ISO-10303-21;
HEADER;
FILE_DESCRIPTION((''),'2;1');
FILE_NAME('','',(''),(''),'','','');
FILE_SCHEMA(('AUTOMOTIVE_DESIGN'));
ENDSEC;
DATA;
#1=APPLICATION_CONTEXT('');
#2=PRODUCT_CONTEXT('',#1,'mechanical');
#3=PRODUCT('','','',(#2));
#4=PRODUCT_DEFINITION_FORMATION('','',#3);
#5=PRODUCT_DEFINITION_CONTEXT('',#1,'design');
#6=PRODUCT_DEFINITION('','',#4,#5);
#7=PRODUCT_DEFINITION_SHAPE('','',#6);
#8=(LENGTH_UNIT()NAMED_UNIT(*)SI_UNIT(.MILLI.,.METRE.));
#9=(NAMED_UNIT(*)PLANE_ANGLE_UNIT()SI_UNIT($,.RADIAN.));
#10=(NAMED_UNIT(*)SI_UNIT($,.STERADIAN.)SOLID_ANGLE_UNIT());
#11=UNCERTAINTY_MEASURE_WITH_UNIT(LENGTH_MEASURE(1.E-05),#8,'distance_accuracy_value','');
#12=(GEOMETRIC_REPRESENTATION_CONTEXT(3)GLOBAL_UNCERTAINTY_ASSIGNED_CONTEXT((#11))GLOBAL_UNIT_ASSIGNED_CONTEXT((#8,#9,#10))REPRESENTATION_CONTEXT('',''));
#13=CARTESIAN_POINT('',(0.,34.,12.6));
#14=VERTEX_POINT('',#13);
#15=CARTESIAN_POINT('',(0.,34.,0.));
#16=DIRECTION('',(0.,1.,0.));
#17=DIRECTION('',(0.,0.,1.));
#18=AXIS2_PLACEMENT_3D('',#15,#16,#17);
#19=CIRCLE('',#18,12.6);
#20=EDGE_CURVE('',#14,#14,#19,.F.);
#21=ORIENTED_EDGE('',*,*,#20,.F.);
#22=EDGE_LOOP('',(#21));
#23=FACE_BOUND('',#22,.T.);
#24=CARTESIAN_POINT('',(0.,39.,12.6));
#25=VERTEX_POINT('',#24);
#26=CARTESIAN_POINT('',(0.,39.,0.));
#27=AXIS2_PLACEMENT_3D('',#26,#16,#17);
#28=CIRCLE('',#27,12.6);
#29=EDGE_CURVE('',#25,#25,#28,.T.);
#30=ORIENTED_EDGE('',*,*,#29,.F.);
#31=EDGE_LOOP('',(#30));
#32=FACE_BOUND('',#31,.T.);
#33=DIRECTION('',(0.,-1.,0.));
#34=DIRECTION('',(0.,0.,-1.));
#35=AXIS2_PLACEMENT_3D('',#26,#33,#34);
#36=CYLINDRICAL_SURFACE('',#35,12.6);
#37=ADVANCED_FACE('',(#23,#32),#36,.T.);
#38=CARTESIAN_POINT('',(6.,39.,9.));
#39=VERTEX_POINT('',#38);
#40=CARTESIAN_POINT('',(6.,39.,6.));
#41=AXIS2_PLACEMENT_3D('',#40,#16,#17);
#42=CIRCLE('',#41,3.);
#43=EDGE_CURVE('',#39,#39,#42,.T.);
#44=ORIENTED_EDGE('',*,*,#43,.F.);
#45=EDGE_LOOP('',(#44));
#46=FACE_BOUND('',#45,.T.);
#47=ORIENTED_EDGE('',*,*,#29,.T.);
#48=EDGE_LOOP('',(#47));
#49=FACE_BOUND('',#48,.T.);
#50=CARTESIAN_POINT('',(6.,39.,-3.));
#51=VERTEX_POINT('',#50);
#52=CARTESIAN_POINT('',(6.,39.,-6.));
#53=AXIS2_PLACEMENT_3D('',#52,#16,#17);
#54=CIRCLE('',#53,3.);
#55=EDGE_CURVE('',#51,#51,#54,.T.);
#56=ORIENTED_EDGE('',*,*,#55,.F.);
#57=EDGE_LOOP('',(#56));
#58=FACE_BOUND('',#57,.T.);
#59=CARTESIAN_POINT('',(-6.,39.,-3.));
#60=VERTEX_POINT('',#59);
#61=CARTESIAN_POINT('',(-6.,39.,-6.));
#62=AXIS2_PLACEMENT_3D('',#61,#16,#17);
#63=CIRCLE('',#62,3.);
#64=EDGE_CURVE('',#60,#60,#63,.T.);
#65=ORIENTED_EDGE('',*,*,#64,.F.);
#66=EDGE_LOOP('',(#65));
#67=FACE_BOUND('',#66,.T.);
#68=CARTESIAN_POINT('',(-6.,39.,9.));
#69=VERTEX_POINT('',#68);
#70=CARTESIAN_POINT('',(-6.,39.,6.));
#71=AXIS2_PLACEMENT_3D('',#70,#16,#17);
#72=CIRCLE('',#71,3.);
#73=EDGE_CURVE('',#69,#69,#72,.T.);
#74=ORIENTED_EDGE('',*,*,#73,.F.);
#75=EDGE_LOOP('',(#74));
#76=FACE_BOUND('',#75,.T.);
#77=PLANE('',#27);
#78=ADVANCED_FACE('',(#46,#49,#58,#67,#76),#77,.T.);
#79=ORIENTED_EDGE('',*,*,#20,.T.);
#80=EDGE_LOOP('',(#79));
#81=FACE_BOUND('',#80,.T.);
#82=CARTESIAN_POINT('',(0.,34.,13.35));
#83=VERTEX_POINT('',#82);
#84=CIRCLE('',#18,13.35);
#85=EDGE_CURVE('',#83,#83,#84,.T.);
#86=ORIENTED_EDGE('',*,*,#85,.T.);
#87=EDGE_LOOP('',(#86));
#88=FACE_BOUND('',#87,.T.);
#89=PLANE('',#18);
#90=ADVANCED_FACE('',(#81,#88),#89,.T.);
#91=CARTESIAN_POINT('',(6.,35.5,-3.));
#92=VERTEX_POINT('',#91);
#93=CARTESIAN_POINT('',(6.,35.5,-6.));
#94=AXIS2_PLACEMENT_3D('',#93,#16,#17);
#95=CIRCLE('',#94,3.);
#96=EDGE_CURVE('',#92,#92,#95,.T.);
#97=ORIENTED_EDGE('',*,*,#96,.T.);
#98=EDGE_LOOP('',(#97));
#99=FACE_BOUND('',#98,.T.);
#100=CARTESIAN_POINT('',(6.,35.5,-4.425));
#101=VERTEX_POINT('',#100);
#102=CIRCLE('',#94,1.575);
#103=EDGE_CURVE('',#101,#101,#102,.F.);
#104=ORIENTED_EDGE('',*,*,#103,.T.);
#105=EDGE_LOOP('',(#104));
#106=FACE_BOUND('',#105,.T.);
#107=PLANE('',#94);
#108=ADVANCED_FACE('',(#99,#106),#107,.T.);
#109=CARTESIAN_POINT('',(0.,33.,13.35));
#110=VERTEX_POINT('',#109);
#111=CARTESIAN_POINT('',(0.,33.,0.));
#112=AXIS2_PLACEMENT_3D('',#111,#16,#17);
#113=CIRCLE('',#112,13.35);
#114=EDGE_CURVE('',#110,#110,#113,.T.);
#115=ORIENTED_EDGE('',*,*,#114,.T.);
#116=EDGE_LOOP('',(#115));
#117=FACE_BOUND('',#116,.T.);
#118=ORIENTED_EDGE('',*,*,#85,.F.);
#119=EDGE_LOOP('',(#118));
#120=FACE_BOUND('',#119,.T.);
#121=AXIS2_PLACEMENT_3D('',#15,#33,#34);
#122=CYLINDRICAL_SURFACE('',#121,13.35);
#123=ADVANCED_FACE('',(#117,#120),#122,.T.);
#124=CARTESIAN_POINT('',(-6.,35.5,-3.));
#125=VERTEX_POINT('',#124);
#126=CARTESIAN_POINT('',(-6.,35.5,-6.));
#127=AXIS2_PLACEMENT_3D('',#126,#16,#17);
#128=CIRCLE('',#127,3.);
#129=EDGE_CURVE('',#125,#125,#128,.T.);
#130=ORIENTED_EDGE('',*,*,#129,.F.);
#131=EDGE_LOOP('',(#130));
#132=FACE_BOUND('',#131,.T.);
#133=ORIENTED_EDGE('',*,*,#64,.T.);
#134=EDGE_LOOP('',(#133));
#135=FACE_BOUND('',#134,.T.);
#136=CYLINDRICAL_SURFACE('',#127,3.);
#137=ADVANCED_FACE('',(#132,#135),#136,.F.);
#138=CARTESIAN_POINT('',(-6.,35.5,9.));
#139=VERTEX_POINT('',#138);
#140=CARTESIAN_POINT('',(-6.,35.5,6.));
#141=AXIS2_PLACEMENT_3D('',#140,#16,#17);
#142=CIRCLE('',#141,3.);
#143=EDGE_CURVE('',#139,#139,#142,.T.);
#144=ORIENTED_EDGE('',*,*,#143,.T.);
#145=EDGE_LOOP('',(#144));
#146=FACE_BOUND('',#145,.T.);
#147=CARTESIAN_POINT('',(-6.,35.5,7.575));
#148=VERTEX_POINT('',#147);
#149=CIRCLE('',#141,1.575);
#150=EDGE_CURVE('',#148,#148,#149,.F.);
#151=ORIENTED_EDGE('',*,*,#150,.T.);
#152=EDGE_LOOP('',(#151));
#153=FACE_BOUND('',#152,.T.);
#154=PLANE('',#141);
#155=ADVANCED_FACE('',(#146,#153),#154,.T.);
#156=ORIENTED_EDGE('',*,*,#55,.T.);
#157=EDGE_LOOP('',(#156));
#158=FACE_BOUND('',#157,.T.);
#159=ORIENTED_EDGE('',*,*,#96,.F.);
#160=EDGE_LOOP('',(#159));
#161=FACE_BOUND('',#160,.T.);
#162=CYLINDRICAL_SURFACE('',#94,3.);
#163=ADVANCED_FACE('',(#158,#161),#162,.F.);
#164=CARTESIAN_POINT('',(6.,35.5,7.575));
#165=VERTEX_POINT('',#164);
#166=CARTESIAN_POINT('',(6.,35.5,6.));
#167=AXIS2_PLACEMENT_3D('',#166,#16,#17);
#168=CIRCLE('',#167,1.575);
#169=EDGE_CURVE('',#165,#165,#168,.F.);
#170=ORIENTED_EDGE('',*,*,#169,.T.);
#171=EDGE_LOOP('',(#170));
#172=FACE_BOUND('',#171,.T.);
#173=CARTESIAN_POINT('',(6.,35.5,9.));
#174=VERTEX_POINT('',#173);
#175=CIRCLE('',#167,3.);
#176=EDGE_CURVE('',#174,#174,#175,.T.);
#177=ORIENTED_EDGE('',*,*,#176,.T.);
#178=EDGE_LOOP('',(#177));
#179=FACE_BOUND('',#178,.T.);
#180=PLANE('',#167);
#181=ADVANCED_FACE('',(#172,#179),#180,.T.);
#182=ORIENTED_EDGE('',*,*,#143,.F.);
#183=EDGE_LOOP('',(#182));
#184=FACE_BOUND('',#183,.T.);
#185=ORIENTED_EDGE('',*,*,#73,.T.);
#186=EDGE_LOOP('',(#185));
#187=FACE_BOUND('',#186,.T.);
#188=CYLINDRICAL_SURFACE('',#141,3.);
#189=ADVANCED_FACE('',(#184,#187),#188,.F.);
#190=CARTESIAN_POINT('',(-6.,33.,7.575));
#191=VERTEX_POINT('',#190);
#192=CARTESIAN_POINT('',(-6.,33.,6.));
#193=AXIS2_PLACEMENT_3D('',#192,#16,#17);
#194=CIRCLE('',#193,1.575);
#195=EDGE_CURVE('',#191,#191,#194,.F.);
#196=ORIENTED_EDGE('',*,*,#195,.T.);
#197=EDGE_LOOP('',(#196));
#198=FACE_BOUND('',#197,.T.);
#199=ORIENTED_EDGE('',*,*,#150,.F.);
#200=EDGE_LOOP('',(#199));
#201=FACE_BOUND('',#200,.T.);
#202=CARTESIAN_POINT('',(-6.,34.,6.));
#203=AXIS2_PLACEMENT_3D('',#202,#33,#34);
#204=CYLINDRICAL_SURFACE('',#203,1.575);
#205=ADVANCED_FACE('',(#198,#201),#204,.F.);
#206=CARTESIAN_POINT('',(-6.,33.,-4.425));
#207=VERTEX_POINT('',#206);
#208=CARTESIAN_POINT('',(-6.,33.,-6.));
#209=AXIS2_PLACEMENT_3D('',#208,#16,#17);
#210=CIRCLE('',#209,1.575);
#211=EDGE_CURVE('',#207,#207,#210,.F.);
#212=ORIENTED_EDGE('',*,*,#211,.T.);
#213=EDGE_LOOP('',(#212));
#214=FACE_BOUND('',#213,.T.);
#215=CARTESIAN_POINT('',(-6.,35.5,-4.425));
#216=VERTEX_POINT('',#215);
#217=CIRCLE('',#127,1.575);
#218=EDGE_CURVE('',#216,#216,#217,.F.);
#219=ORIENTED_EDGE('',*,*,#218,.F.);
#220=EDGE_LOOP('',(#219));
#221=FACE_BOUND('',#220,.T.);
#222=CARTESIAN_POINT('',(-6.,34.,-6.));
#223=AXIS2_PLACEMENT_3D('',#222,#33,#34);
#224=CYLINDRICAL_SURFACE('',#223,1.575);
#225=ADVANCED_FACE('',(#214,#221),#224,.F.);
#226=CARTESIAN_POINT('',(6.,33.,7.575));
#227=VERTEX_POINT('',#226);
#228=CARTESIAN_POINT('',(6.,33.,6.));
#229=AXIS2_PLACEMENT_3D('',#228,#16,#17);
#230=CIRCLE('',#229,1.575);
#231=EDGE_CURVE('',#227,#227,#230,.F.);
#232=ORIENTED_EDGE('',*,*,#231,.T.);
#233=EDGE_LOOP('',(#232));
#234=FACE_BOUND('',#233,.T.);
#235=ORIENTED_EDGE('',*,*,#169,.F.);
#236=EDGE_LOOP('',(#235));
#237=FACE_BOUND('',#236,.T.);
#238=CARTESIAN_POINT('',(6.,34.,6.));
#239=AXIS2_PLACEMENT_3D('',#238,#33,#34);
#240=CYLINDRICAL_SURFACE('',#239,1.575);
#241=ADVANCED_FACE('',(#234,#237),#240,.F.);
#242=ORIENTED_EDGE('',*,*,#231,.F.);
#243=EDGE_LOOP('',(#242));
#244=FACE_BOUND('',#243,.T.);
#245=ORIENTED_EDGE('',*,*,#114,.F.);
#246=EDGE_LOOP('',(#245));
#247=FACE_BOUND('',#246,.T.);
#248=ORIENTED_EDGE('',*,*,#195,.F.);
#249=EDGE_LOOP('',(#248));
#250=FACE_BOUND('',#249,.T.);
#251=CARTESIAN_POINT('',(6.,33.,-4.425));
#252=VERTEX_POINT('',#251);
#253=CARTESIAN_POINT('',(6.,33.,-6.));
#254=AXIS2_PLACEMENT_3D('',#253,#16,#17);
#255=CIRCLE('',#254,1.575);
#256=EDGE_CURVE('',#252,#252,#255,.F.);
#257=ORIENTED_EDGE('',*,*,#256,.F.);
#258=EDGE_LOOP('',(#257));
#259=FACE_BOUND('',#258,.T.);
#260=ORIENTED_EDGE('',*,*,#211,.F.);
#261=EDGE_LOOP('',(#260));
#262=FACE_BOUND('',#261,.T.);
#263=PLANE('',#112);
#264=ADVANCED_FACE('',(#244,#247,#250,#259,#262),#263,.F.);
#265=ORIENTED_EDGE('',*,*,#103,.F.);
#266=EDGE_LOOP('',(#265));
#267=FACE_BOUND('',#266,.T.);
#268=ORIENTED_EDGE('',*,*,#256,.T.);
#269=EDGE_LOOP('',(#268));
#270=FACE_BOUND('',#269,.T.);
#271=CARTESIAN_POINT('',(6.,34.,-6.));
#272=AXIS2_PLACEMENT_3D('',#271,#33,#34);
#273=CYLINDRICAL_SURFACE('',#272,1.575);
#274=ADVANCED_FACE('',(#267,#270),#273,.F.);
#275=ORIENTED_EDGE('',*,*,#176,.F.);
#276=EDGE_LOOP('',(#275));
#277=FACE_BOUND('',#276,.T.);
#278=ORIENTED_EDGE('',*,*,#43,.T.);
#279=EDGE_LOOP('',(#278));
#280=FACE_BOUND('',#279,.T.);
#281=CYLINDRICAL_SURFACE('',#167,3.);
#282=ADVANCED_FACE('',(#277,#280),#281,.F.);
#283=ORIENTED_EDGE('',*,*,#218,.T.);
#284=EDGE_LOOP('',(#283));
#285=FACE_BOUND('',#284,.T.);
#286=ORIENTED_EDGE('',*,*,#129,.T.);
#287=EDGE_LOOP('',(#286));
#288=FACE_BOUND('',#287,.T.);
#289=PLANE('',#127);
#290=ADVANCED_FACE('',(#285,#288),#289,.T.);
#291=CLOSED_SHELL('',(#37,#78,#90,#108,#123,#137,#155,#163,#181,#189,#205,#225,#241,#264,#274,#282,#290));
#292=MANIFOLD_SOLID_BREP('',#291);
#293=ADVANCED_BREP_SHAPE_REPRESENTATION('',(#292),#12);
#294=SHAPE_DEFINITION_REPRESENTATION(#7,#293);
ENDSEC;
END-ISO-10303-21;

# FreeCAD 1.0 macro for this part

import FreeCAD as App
import Part
import Sketcher
Q = App.Units.Quantity

doc = App.newDocument("Part")
body = doc.addObject("PartDesign::Body", "Body")

# Sketch on XZ plane
sketch1 = doc.addObject("Sketcher::SketchObject", "Sketch")
body.addObject(sketch1)
sketch1.AttachmentSupport = (doc.XZ_Plane, [""])
sketch1.MapMode = "FlatFace"
sketch1.AttachmentOffset = App.Placement(App.Vector(0, 0, -33), App.Rotation())
sketch1.addGeometry(Part.Circle(App.Vector(0, 0, 0), App.Vector(0, 0, 1), 13.3), False)
sketch1.addGeometry(Part.Circle(App.Vector(6, -6, 0), App.Vector(0, 0, 1), 1.6), False)
sketch1.addGeometry(Part.Circle(App.Vector(-6, 6, 0), App.Vector(0, 0, 1), 1.6), False)
sketch1.addGeometry(Part.Circle(App.Vector(6, 6, 0), App.Vector(0, 0, 1), 1.6), False)
sketch1.addGeometry(Part.Circle(App.Vector(-6, -6, 0), App.Vector(0, 0, 1), 1.6), False)
sketch1.addConstraint(Sketcher.Constraint("Coincident", 0, 3, -1, 1))
sketch1.addConstraint(Sketcher.Constraint("Equal", 1, 2))
sketch1.addConstraint(Sketcher.Constraint("Equal", 2, 3))
sketch1.addConstraint(Sketcher.Constraint("Equal", 3, 4))
sketch1.addConstraint(Sketcher.Constraint("Symmetric", 1, 3, 2, 3, -1, 1))
sketch1.addConstraint(Sketcher.Constraint("Symmetric", 3, 3, 4, 3, -1, 1))
sketch1.addConstraint(Sketcher.Constraint("Symmetric", 2, 3, 3, 3, -2))
sketch1.addConstraint(Sketcher.Constraint("Diameter", 0, Q("26.7 mm")))
sketch1.addConstraint(Sketcher.Constraint("Diameter", 1, Q("3.15 mm")))
sketch1.addConstraint(Sketcher.Constraint("DistanceX", -1, 1, 1, 3, Q("6 mm")))
sketch1.addConstraint(Sketcher.Constraint("DistanceY", 1, 3, -1, 1, Q("6 mm")))
pad1 = doc.addObject("PartDesign::Pad", "Pad")
body.addObject(pad1)
pad1.Profile = sketch1
pad1.Length = 1
pad1.Reversed = True

# Sketch on XZ plane
sketch2 = doc.addObject("Sketcher::SketchObject", "Sketch001")
body.addObject(sketch2)
sketch2.AttachmentSupport = (doc.XZ_Plane, [""])
sketch2.MapMode = "FlatFace"
sketch2.AttachmentOffset = App.Placement(App.Vector(0, 0, -33), App.Rotation())
sketch2.addGeometry(Part.Circle(App.Vector(0, 0, 0), App.Vector(0, 0, 1), 12.6), False)
sketch2.addGeometry(Part.Circle(App.Vector(-6, -6, 0), App.Vector(0, 0, 1), 1.6), False)
sketch2.addGeometry(Part.Circle(App.Vector(-6, 6, 0), App.Vector(0, 0, 1), 1.6), False)
sketch2.addGeometry(Part.Circle(App.Vector(6, -6, 0), App.Vector(0, 0, 1), 1.6), False)
sketch2.addGeometry(Part.Circle(App.Vector(6, 6, 0), App.Vector(0, 0, 1), 1.6), False)
sketch2.addConstraint(Sketcher.Constraint("Coincident", 0, 3, -1, 1))
sketch2.addConstraint(Sketcher.Constraint("Equal", 1, 2))
sketch2.addConstraint(Sketcher.Constraint("Equal", 2, 3))
sketch2.addConstraint(Sketcher.Constraint("Equal", 3, 4))
sketch2.addConstraint(Sketcher.Constraint("Symmetric", 2, 3, 3, 3, -1, 1))
sketch2.addConstraint(Sketcher.Constraint("Symmetric", 1, 3, 4, 3, -1, 1))
sketch2.addConstraint(Sketcher.Constraint("Symmetric", 1, 3, 3, 3, -2))
sketch2.addConstraint(Sketcher.Constraint("Diameter", 0, Q("25.2 mm")))
sketch2.addConstraint(Sketcher.Constraint("Diameter", 1, Q("3.15 mm")))
sketch2.addConstraint(Sketcher.Constraint("DistanceX", 1, 3, -1, 1, Q("6 mm")))
sketch2.addConstraint(Sketcher.Constraint("DistanceY", 1, 3, -1, 1, Q("6 mm")))
pad2 = doc.addObject("PartDesign::Pad", "Pad001")
body.addObject(pad2)
pad2.Profile = sketch2
pad2.Length = 6
pad2.Reversed = True

# Sketch on XZ plane
sketch3 = doc.addObject("Sketcher::SketchObject", "Sketch002")
body.addObject(sketch3)
sketch3.AttachmentSupport = (doc.XZ_Plane, [""])
sketch3.MapMode = "FlatFace"
sketch3.AttachmentOffset = App.Placement(App.Vector(0, 0, -39), App.Rotation())
sketch3.addGeometry(Part.Circle(App.Vector(-6, -6, 0), App.Vector(0, 0, 1), 3), False)
sketch3.addGeometry(Part.Circle(App.Vector(6, -6, 0), App.Vector(0, 0, 1), 3), False)
sketch3.addGeometry(Part.Circle(App.Vector(6, 6, 0), App.Vector(0, 0, 1), 3), False)
sketch3.addGeometry(Part.Circle(App.Vector(-6, 6, 0), App.Vector(0, 0, 1), 3), False)
sketch3.addConstraint(Sketcher.Constraint("Equal", 0, 1))
sketch3.addConstraint(Sketcher.Constraint("Equal", 1, 2))
sketch3.addConstraint(Sketcher.Constraint("Equal", 2, 3))
sketch3.addConstraint(Sketcher.Constraint("Symmetric", 0, 3, 2, 3, -1, 1))
sketch3.addConstraint(Sketcher.Constraint("Symmetric", 1, 3, 3, 3, -1, 1))
sketch3.addConstraint(Sketcher.Constraint("Symmetric", 0, 3, 1, 3, -2))
sketch3.addConstraint(Sketcher.Constraint("Diameter", 0, Q("6 mm")))
sketch3.addConstraint(Sketcher.Constraint("DistanceX", 0, 3, -1, 1, Q("6 mm")))
sketch3.addConstraint(Sketcher.Constraint("DistanceY", 0, 3, -1, 1, Q("6 mm")))
pocket1 = doc.addObject("PartDesign::Pocket", "Pocket")
body.addObject(pocket1)
pocket1.Profile = sketch3
pocket1.Length = 3.5
pocket1.Reversed = True

doc.recompute()
